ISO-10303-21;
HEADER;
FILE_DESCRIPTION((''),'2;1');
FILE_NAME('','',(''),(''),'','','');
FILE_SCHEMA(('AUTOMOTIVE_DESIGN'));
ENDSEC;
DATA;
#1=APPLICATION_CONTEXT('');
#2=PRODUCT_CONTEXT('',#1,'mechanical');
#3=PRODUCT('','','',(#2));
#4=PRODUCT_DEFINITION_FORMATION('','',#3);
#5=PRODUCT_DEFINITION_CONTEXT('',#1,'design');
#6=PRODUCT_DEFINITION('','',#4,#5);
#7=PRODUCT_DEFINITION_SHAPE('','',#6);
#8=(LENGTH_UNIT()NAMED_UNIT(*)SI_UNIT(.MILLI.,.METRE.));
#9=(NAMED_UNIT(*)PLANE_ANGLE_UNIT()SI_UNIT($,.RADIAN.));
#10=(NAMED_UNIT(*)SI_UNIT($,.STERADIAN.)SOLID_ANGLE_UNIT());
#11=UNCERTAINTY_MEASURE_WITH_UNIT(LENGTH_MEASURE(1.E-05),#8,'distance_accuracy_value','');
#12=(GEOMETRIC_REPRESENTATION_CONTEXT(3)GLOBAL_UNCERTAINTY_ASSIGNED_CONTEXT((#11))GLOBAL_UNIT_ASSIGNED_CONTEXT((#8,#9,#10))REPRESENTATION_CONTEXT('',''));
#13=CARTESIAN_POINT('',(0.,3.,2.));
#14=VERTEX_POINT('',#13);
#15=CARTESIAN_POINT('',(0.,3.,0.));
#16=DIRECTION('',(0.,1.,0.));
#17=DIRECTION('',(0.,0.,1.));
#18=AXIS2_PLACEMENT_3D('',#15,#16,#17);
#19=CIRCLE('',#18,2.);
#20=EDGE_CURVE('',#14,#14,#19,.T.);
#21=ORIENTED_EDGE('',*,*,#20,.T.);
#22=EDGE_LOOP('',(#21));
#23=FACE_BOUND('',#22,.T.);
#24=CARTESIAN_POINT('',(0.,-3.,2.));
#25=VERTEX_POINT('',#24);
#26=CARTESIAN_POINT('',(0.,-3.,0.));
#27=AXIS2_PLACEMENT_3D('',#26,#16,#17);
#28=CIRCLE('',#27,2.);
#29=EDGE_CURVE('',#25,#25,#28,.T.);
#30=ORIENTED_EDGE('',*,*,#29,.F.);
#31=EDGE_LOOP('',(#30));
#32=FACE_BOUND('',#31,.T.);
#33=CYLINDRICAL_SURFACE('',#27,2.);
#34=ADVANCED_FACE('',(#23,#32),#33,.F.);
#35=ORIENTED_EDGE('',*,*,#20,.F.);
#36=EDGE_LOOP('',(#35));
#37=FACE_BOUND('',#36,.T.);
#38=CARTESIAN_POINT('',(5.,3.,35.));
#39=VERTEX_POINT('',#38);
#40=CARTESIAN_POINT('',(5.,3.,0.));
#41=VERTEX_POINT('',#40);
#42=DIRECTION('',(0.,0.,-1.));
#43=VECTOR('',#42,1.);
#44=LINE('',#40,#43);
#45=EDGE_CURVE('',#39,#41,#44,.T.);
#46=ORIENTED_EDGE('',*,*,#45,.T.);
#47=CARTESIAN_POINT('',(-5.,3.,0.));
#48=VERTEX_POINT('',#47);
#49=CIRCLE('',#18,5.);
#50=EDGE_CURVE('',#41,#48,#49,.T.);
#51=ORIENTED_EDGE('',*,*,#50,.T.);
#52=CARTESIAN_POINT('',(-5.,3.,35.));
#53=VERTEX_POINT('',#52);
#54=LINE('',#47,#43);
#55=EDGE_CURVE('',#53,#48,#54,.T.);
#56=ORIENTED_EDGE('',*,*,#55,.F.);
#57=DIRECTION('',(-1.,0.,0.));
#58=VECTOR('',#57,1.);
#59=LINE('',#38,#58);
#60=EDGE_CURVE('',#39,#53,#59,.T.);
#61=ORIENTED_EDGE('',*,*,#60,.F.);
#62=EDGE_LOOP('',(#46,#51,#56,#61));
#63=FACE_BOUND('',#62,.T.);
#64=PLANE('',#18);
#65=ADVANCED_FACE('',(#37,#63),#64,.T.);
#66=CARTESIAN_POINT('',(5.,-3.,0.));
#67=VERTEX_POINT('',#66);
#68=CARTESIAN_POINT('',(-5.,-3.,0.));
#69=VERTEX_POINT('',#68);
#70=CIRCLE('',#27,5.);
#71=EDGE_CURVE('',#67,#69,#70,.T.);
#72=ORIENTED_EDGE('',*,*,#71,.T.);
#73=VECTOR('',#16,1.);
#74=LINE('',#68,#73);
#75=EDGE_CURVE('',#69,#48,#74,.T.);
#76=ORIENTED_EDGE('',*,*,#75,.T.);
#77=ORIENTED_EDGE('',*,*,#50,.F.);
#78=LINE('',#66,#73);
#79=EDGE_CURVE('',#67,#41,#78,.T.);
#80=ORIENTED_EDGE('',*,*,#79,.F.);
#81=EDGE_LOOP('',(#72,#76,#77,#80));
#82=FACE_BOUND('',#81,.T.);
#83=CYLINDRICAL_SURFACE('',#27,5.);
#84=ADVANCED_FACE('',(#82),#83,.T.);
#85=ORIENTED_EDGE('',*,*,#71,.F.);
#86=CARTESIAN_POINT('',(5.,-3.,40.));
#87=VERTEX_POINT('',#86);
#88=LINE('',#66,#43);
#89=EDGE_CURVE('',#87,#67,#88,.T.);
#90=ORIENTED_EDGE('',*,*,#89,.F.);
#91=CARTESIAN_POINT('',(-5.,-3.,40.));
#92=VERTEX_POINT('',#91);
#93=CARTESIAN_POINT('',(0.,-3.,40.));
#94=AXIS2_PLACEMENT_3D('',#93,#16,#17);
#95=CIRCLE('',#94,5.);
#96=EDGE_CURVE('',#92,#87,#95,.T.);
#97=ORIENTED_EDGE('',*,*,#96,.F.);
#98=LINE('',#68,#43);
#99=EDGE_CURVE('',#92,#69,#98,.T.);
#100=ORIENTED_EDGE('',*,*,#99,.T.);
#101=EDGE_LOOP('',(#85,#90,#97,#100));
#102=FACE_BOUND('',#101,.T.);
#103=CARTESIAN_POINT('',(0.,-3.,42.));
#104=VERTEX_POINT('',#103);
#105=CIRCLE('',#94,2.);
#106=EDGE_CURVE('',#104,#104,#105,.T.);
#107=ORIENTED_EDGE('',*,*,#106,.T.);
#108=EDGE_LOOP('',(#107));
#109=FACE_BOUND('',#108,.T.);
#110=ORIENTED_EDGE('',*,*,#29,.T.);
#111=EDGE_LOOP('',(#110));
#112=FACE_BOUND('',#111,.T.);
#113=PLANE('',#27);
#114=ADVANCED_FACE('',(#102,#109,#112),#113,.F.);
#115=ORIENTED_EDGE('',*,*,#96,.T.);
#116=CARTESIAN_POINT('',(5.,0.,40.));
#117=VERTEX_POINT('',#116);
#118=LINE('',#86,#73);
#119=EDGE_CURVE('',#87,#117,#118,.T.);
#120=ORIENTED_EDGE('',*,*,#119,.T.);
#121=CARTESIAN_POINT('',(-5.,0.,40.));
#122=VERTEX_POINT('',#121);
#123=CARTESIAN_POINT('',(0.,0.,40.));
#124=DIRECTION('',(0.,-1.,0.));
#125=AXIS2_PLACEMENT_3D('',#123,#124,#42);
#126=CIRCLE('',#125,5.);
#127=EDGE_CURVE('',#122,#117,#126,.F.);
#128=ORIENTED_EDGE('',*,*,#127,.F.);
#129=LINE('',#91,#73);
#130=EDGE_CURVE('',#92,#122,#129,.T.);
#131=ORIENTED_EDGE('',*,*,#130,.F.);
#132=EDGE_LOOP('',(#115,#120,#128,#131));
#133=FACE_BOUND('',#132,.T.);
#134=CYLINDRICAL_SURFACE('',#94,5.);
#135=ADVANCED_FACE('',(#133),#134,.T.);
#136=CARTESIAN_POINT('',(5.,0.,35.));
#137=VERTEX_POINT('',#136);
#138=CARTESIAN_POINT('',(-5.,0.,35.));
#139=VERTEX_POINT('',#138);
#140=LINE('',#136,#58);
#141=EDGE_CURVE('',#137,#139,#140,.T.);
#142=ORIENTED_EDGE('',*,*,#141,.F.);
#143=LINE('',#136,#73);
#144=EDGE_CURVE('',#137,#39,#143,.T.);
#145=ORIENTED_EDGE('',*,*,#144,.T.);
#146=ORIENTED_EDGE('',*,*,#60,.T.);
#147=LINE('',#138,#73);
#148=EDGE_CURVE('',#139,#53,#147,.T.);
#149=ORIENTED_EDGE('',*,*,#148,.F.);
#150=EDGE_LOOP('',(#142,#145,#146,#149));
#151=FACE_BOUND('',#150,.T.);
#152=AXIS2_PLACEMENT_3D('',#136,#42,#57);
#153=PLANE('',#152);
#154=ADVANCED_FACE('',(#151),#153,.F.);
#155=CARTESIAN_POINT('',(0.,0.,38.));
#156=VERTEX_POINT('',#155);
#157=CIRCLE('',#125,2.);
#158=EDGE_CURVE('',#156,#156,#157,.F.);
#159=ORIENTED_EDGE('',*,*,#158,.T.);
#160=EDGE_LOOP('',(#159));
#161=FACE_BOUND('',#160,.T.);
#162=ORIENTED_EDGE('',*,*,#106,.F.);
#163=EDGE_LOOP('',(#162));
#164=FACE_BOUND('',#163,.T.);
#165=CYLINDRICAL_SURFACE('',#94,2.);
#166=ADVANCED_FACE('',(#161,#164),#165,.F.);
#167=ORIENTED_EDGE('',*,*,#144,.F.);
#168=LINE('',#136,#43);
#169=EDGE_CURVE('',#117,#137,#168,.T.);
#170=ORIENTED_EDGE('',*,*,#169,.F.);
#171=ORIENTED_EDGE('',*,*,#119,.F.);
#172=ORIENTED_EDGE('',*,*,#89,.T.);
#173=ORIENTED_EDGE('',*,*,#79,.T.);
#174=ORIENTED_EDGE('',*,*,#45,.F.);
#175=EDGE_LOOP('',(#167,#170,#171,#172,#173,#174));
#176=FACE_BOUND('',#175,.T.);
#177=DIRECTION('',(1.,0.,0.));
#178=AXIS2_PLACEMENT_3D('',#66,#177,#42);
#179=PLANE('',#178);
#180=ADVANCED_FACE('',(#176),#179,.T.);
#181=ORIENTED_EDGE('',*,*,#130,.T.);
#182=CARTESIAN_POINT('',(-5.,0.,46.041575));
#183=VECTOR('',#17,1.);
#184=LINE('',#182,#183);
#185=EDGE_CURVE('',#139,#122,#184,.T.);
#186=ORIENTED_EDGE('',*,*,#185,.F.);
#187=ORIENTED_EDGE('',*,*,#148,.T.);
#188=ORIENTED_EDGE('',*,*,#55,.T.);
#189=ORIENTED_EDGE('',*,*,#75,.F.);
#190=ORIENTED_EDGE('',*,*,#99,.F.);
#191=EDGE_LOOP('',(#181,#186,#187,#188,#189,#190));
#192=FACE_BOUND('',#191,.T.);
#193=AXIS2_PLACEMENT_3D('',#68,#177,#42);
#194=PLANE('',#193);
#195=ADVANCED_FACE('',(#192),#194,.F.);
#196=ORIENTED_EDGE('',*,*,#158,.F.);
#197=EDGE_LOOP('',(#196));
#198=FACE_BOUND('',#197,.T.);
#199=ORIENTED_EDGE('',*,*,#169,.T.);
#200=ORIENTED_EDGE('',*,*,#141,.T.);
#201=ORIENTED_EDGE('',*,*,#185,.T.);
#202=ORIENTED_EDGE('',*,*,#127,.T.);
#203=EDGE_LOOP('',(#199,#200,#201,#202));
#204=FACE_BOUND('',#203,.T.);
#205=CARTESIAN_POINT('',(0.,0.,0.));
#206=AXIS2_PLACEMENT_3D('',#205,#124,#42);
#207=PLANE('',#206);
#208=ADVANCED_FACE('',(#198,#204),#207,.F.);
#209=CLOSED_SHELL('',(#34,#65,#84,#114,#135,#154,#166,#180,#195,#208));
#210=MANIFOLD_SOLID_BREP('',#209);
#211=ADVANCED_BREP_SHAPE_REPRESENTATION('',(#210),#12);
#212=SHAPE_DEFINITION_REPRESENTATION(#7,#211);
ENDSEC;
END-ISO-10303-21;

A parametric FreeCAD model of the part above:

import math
import FreeCAD as App
import Part
import Sketcher
from FreeCAD import Vector


def add_polygon(sketch, points):
    """Adds a closed chain of lines whose ends are joined by coincident constraints."""
    first, n = sketch.GeometryCount, len(points)
    for a, b in zip(points, points[1:] + points[:1]):
        sketch.addGeometry(Part.LineSegment(App.Vector(*a, 0), App.Vector(*b, 0)), False)
    for i in range(n):
        sketch.addConstraint(Sketcher.Constraint("Coincident", first + i, 2, first + (i + 1) % n, 1))

doc = App.newDocument("Part")
params = doc.addObject("Spreadsheet::Sheet", "Params")
for row, (alias, value) in enumerate([
    ("sketch1_diameter", "4 mm"),
    ("sketch1_radius", "5 mm"),
    ("sketch1_height", "40 mm"),
    ("pad1_length", "3 mm"),
    ("pad1_length2", "3 mm"),
    ("sketch2_width", "10 mm"),
    ("pocket1_length", "3 mm"),
], start=1):
    params.set(f"A{row}", alias)
    params.set(f"B{row}", "=" + value)
    params.setAlias(f"B{row}", alias)

body = doc.addObject("PartDesign::Body", "Body")

# Sketch on XZ plane
sketch1 = doc.addObject("Sketcher::SketchObject", "Sketch")
body.addObject(sketch1)
sketch1.AttachmentSupport = (doc.XZ_Plane, [""])
sketch1.MapMode = "FlatFace"
sketch1.addGeometry(Part.LineSegment(Vector(-5, 0, 0), Vector(-5, 40, 0)), False)
sketch1.addGeometry(Part.ArcOfCircle(Part.Circle(Vector(0, 40, 0), Vector(0, 0, 1), 5), math.radians(0), math.radians(180)), False)
sketch1.addGeometry(Part.LineSegment(Vector(5, 40, 0), Vector(5, 0, 0)), False)
sketch1.addGeometry(Part.ArcOfCircle(Part.Circle(Vector(0, 0, 0), Vector(0, 0, 1), 5), math.radians(180), math.radians(360)), False)
sketch1.addGeometry(Part.Circle(Vector(0, 40, 0), Vector(0, 0, 1), 2), False)
sketch1.addGeometry(Part.Circle(Vector(0, 0, 0), Vector(0, 0, 1), 2), False)
sketch1.addConstraint(Sketcher.Constraint("Tangent", 0, 2, 1, 2))
sketch1.addConstraint(Sketcher.Constraint("Tangent", 1, 1, 2, 1))
sketch1.addConstraint(Sketcher.Constraint("Tangent", 2, 2, 3, 2))
sketch1.addConstraint(Sketcher.Constraint("Tangent", 3, 1, 0, 1))
sketch1.addConstraint(Sketcher.Constraint("Vertical", 0))
sketch1.addConstraint(Sketcher.Constraint("Vertical", 2))
sketch1.addConstraint(Sketcher.Constraint("Coincident", 3, 3, -1, 1))
sketch1.addConstraint(Sketcher.Constraint("Coincident", 5, 3, -1, 1))
sketch1.addConstraint(Sketcher.Constraint("Coincident", 4, 3, 1, 3))
sketch1.addConstraint(Sketcher.Constraint("Equal", 4, 5))
sketch1.addConstraint(Sketcher.Constraint("Diameter", 4, 4.0))
sketch1.addConstraint(Sketcher.Constraint("Radius", 1, 5.0))
sketch1.addConstraint(Sketcher.Constraint("DistanceY", 0, 1, 0, 2, 40.0))
sketch1.setExpression("Constraints[10]", "Params.sketch1_diameter")
sketch1.setExpression("Constraints[11]", "Params.sketch1_radius")
sketch1.setExpression("Constraints[12]", "Params.sketch1_height")
pad1 = doc.addObject("PartDesign::Pad", "Pad")
body.addObject(pad1)
pad1.Profile = sketch1
pad1.Type = "TwoLengths"
pad1.setExpression("Length", "Params.pad1_length")
pad1.setExpression("Length2", "Params.pad1_length2")
pad1.Reversed = True

# Sketch on XZ plane
sketch2 = doc.addObject("Sketcher::SketchObject", "Sketch001")
body.addObject(sketch2)
sketch2.AttachmentSupport = (doc.XZ_Plane, [""])
sketch2.MapMode = "FlatFace"
sketch2.AttachmentOffset = App.Placement(Vector(0, 0, -3), App.Rotation())
add_polygon(sketch2, [(-5, 35), (-5, 46.041575), (5, 46.041575), (5, 35)])  # lines 0-3
sketch2.addConstraint(Sketcher.Constraint("Vertical", 0))
sketch2.addConstraint(Sketcher.Constraint("Horizontal", 1))
sketch2.addConstraint(Sketcher.Constraint("Vertical", 2))
sketch2.addConstraint(Sketcher.Constraint("Horizontal", 3))
sketch2.addConstraint(Sketcher.Constraint("DistanceX", 1, 1, 1, 2, 10.0))
sketch2.addConstraint(Sketcher.Constraint("DistanceX", 0, 2, -1, 1, 5.0))
sketch2.addConstraint(Sketcher.Constraint("DistanceY", -1, 1, 2, 2, 35.0))
sketch2.addConstraint(Sketcher.Constraint("DistanceY", 0, 1, 0, 2, 11.041575))
sketch2.setExpression("Constraints[8]", "Params.sketch2_width")
pocket1 = doc.addObject("PartDesign::Pocket", "Pocket")
body.addObject(pocket1)
pocket1.Profile = sketch2
pocket1.setExpression("Length", "Params.pocket1_length")
pocket1.Reversed = True

doc.recompute()
